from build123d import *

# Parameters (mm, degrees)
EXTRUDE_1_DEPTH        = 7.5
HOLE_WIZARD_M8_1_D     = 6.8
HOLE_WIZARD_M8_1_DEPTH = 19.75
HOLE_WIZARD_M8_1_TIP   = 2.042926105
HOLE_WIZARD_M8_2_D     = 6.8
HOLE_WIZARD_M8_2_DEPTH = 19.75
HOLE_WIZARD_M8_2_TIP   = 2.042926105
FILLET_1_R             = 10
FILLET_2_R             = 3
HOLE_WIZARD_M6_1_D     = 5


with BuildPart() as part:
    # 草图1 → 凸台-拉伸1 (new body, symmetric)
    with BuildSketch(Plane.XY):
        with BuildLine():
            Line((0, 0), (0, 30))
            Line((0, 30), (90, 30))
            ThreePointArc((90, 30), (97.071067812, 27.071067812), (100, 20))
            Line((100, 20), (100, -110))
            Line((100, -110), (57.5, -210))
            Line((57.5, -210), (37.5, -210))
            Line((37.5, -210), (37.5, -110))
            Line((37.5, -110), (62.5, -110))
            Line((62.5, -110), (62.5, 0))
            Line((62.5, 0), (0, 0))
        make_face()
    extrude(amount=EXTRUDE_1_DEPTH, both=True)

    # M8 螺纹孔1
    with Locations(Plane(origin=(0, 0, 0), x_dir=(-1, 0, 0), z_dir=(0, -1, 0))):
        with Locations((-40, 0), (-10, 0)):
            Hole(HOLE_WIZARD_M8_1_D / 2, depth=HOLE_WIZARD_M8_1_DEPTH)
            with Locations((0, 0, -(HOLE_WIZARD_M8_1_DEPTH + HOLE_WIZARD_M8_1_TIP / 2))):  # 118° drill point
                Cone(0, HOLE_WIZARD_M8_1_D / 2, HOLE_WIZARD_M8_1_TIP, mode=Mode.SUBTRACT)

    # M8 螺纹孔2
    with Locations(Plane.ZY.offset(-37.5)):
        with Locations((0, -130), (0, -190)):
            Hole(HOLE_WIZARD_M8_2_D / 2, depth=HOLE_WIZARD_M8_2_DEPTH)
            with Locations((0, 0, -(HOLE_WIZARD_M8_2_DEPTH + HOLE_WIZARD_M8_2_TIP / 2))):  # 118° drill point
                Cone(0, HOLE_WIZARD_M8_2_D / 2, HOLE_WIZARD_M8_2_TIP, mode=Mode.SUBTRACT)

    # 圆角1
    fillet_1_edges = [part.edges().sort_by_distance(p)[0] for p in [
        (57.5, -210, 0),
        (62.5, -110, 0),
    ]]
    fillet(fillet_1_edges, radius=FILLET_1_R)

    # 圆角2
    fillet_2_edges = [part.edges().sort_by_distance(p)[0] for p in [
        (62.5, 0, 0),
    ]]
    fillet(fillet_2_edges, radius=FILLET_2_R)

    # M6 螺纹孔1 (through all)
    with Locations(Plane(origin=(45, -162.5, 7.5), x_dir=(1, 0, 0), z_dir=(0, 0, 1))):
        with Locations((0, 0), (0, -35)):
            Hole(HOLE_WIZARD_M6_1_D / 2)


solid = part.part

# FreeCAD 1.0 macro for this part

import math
import FreeCAD as App
import Part
import Sketcher


def edges_at(feature, points):
    """Names of the edges that pass closest to the given points."""
    edges = feature.Shape.Edges
    near = lambda p: min(range(len(edges)), key=lambda i: edges[i].distToShape(Part.Vertex(*p))[0])
    return sorted({f"Edge{near(p) + 1}" for p in points})

doc = App.newDocument("Part")
params = doc.addObject("Spreadsheet::Sheet", "Params")
for row, (alias, value) in enumerate([
    ("sketch1_radius", "10 mm"),
    ("sketch1_width", "25 mm"),
    ("sketch1_width2", "20 mm"),
    ("sketch1_width3", "90 mm"),
    ("sketch1_height", "30 mm"),
    ("pad1_length", "15 mm"),
    ("sketch2_diameter", "6.8 mm"),
    ("hole_diameter", "6.8 mm"),
    ("hole_depth", "19.75 mm"),
    ("sketch3_diameter", "6.8 mm"),
    ("hole2_diameter", "6.8 mm"),
    ("hole2_depth", "19.75 mm"),
    ("fillet_radius", "10 mm"),
    ("fillet2_radius", "3 mm"),
    ("sketch4_diameter", "5 mm"),
    ("hole3_diameter", "5 mm"),
], start=1):
    params.set(f"A{row}", alias)
    params.set(f"B{row}", "=" + value)
    params.setAlias(f"B{row}", alias)

body = doc.addObject("PartDesign::Body", "Body")

sketch1 = body.newObject("Sketcher::SketchObject", "Sketch")
sketch1.AttachmentSupport = (doc.getObject("XY_Plane"), [""])
sketch1.MapMode = "FlatFace"
sketch1.addGeometry([
    Part.LineSegment(App.Vector(0, 30, 0), App.Vector(0, 0, 0)),
    Part.LineSegment(App.Vector(0, 0, 0), App.Vector(62, 0, 0)),
    Part.LineSegment(App.Vector(62, 0, 0), App.Vector(62, -110, 0)),
    Part.LineSegment(App.Vector(62, -110, 0), App.Vector(38, -110, 0)),
    Part.LineSegment(App.Vector(38, -110, 0), App.Vector(38, -210, 0)),
    Part.LineSegment(App.Vector(38, -210, 0), App.Vector(58, -210, 0)),
    Part.LineSegment(App.Vector(58, -210, 0), App.Vector(100, -110, 0)),
    Part.LineSegment(App.Vector(100, -110, 0), App.Vector(100, 20, 0)),
    Part.ArcOfCircle(Part.Circle(App.Vector(90, 20, 0), App.Vector(0, 0, 1), 10), math.radians(0), math.radians(90)),
    Part.LineSegment(App.Vector(90, 30, 0), App.Vector(0, 30, 0)),
], False)
sketch1.addConstraint([
    Sketcher.Constraint("Coincident", 0, 2, 1, 1),
    Sketcher.Constraint("Coincident", 1, 2, 2, 1),
    Sketcher.Constraint("Coincident", 2, 2, 3, 1),
    Sketcher.Constraint("Coincident", 3, 2, 4, 1),
    Sketcher.Constraint("Coincident", 4, 2, 5, 1),
    Sketcher.Constraint("Coincident", 5, 2, 6, 1),
    Sketcher.Constraint("Coincident", 6, 2, 7, 1),
    Sketcher.Constraint("Tangent", 7, 2, 8, 1),
    Sketcher.Constraint("Tangent", 8, 2, 9, 1),
    Sketcher.Constraint("Coincident", 9, 2, 0, 1),
    Sketcher.Constraint("Vertical", 0),
    Sketcher.Constraint("Horizontal", 1),
    Sketcher.Constraint("Vertical", 2),
    Sketcher.Constraint("Horizontal", 3),
    Sketcher.Constraint("Vertical", 4),
    Sketcher.Constraint("Horizontal", 5),
    Sketcher.Constraint("Vertical", 7),
    Sketcher.Constraint("Horizontal", 9),
    Sketcher.Constraint("Coincident", 0, 2, -1, 1),
    Sketcher.Constraint("Horizontal", 3, 2, 6, 2),
    Sketcher.Constraint("Radius", 8, 10.0),
    Sketcher.Constraint("DistanceX", 3, 2, 3, 1, 25.0),
    Sketcher.Constraint("DistanceX", 5, 1, 5, 2, 20.0),
    Sketcher.Constraint("DistanceX", 9, 2, 9, 1, 90.0),
    Sketcher.Constraint("DistanceY", 0, 2, 0, 1, 30.0),
    Sketcher.Constraint("DistanceY", 2, 2, 2, 1, 110.0),
    Sketcher.Constraint("DistanceY", 4, 2, 4, 1, 100.0),
    Sketcher.Constraint("DistanceX", 1, 1, 1, 2, 62.5),
])
sketch1.setExpression("Constraints[20]", "Params.sketch1_radius")
sketch1.setExpression("Constraints[21]", "Params.sketch1_width")
sketch1.setExpression("Constraints[22]", "Params.sketch1_width2")
sketch1.setExpression("Constraints[23]", "Params.sketch1_width3")
sketch1.setExpression("Constraints[24]", "Params.sketch1_height")
pad1 = body.newObject("PartDesign::Pad", "Pad")
pad1.Profile = sketch1
pad1.setExpression("Length", "Params.pad1_length")
pad1.Midplane = True

sketch2 = body.newObject("Sketcher::SketchObject", "Sketch001")
sketch2.AttachmentSupport = (doc.getObject("XZ_Plane"), [""])
sketch2.MapMode = "FlatFace"
sketch2.addGeometry([
    Part.Circle(App.Vector(40, 0, 0), App.Vector(0, 0, 1), 3.4),
    Part.Circle(App.Vector(10, 0, 0), App.Vector(0, 0, 1), 3.4),
], False)
sketch2.addConstraint([
    Sketcher.Constraint("Equal", 0, 1),
    Sketcher.Constraint("PointOnObject", 0, 3, -1),
    Sketcher.Constraint("PointOnObject", 1, 3, -1),
    Sketcher.Constraint("Diameter", 0, 6.8),
    Sketcher.Constraint("DistanceX", -1, 1, 0, 3, 40.0),
    Sketcher.Constraint("DistanceX", -1, 1, 1, 3, 10.0),
])
sketch2.setExpression("Constraints[3]", "Params.sketch2_diameter")
doc.recompute()
hole = body.newObject("PartDesign::Hole", "Hole")
hole.Profile = sketch2
hole.ThreadType = "None"
hole.setExpression("Diameter", "Params.hole_diameter")
hole.DepthType = "Dimension"
hole.setExpression("Depth", "Params.hole_depth")
hole.DrillPoint = "Angled"
hole.DrillPointAngle = 118

sketch3 = body.newObject("Sketcher::SketchObject", "Sketch002")
sketch3.AttachmentSupport = (doc.getObject("YZ_Plane"), [""])
sketch3.MapMode = "FlatFace"
sketch3.AttachmentOffset = App.Placement(App.Vector(0, 0, 37.5), App.Rotation())
sketch3.addGeometry([
    Part.Circle(App.Vector(-130, 0, 0), App.Vector(0, 0, 1), 3.4),
    Part.Circle(App.Vector(-190, 0, 0), App.Vector(0, 0, 1), 3.4),
], False)
sketch3.addConstraint([
    Sketcher.Constraint("Equal", 0, 1),
    Sketcher.Constraint("PointOnObject", 0, 3, -1),
    Sketcher.Constraint("PointOnObject", 1, 3, -1),
    Sketcher.Constraint("Diameter", 0, 6.8),
    Sketcher.Constraint("DistanceX", 0, 3, -1, 1, 130.0),
    Sketcher.Constraint("DistanceX", 1, 3, -1, 1, 190.0),
])
sketch3.setExpression("Constraints[3]", "Params.sketch3_diameter")
doc.recompute()
hole2 = body.newObject("PartDesign::Hole", "Hole001")
hole2.Profile = sketch3
hole2.ThreadType = "None"
hole2.setExpression("Diameter", "Params.hole2_diameter")
hole2.DepthType = "Dimension"
hole2.setExpression("Depth", "Params.hole2_depth")
hole2.DrillPoint = "Angled"
hole2.DrillPointAngle = 118
hole2.Reversed = True
doc.recompute()

fillet = body.newObject("PartDesign::Fillet", "Fillet")
fillet.Base = (hole2, edges_at(hole2, [(57.5, -210, 0), (62.5, -110, 0)]))
fillet.setExpression("Radius", "Params.fillet_radius")
doc.recompute()

fillet2 = body.newObject("PartDesign::Fillet", "Fillet001")
fillet2.Base = (fillet, edges_at(fillet, [(62.5, 0, 0)]))
fillet2.setExpression("Radius", "Params.fillet2_radius")

sketch4 = body.newObject("Sketcher::SketchObject", "Sketch003")
sketch4.AttachmentSupport = (doc.getObject("XY_Plane"), [""])
sketch4.MapMode = "FlatFace"
sketch4.AttachmentOffset = App.Placement(App.Vector(0, 0, 7.5), App.Rotation())
sketch4.addGeometry([
    Part.Circle(App.Vector(45, -162.5, 0), App.Vector(0, 0, 1), 2.5),
    Part.Circle(App.Vector(45, -197.5, 0), App.Vector(0, 0, 1), 2.5),
], False)
sketch4.addConstraint([
    Sketcher.Constraint("Equal", 0, 1),
    Sketcher.Constraint("Vertical", 0, 3, 1, 3),
    Sketcher.Constraint("Diameter", 0, 5.0),
    Sketcher.Constraint("DistanceX", -1, 1, 0, 3, 45.0),
    Sketcher.Constraint("DistanceY", 1, 3, 0, 3, 35.0),
    Sketcher.Constraint("DistanceY", 0, 3, -1, 1, 162.5),
])
sketch4.setExpression("Constraints[2]", "Params.sketch4_diameter")
doc.recompute()
hole3 = body.newObject("PartDesign::Hole", "Hole002")
hole3.Profile = sketch4
hole3.ThreadType = "None"
hole3.setExpression("Diameter", "Params.hole3_diameter")
hole3.DepthType = "ThroughAll"

doc.recompute()
